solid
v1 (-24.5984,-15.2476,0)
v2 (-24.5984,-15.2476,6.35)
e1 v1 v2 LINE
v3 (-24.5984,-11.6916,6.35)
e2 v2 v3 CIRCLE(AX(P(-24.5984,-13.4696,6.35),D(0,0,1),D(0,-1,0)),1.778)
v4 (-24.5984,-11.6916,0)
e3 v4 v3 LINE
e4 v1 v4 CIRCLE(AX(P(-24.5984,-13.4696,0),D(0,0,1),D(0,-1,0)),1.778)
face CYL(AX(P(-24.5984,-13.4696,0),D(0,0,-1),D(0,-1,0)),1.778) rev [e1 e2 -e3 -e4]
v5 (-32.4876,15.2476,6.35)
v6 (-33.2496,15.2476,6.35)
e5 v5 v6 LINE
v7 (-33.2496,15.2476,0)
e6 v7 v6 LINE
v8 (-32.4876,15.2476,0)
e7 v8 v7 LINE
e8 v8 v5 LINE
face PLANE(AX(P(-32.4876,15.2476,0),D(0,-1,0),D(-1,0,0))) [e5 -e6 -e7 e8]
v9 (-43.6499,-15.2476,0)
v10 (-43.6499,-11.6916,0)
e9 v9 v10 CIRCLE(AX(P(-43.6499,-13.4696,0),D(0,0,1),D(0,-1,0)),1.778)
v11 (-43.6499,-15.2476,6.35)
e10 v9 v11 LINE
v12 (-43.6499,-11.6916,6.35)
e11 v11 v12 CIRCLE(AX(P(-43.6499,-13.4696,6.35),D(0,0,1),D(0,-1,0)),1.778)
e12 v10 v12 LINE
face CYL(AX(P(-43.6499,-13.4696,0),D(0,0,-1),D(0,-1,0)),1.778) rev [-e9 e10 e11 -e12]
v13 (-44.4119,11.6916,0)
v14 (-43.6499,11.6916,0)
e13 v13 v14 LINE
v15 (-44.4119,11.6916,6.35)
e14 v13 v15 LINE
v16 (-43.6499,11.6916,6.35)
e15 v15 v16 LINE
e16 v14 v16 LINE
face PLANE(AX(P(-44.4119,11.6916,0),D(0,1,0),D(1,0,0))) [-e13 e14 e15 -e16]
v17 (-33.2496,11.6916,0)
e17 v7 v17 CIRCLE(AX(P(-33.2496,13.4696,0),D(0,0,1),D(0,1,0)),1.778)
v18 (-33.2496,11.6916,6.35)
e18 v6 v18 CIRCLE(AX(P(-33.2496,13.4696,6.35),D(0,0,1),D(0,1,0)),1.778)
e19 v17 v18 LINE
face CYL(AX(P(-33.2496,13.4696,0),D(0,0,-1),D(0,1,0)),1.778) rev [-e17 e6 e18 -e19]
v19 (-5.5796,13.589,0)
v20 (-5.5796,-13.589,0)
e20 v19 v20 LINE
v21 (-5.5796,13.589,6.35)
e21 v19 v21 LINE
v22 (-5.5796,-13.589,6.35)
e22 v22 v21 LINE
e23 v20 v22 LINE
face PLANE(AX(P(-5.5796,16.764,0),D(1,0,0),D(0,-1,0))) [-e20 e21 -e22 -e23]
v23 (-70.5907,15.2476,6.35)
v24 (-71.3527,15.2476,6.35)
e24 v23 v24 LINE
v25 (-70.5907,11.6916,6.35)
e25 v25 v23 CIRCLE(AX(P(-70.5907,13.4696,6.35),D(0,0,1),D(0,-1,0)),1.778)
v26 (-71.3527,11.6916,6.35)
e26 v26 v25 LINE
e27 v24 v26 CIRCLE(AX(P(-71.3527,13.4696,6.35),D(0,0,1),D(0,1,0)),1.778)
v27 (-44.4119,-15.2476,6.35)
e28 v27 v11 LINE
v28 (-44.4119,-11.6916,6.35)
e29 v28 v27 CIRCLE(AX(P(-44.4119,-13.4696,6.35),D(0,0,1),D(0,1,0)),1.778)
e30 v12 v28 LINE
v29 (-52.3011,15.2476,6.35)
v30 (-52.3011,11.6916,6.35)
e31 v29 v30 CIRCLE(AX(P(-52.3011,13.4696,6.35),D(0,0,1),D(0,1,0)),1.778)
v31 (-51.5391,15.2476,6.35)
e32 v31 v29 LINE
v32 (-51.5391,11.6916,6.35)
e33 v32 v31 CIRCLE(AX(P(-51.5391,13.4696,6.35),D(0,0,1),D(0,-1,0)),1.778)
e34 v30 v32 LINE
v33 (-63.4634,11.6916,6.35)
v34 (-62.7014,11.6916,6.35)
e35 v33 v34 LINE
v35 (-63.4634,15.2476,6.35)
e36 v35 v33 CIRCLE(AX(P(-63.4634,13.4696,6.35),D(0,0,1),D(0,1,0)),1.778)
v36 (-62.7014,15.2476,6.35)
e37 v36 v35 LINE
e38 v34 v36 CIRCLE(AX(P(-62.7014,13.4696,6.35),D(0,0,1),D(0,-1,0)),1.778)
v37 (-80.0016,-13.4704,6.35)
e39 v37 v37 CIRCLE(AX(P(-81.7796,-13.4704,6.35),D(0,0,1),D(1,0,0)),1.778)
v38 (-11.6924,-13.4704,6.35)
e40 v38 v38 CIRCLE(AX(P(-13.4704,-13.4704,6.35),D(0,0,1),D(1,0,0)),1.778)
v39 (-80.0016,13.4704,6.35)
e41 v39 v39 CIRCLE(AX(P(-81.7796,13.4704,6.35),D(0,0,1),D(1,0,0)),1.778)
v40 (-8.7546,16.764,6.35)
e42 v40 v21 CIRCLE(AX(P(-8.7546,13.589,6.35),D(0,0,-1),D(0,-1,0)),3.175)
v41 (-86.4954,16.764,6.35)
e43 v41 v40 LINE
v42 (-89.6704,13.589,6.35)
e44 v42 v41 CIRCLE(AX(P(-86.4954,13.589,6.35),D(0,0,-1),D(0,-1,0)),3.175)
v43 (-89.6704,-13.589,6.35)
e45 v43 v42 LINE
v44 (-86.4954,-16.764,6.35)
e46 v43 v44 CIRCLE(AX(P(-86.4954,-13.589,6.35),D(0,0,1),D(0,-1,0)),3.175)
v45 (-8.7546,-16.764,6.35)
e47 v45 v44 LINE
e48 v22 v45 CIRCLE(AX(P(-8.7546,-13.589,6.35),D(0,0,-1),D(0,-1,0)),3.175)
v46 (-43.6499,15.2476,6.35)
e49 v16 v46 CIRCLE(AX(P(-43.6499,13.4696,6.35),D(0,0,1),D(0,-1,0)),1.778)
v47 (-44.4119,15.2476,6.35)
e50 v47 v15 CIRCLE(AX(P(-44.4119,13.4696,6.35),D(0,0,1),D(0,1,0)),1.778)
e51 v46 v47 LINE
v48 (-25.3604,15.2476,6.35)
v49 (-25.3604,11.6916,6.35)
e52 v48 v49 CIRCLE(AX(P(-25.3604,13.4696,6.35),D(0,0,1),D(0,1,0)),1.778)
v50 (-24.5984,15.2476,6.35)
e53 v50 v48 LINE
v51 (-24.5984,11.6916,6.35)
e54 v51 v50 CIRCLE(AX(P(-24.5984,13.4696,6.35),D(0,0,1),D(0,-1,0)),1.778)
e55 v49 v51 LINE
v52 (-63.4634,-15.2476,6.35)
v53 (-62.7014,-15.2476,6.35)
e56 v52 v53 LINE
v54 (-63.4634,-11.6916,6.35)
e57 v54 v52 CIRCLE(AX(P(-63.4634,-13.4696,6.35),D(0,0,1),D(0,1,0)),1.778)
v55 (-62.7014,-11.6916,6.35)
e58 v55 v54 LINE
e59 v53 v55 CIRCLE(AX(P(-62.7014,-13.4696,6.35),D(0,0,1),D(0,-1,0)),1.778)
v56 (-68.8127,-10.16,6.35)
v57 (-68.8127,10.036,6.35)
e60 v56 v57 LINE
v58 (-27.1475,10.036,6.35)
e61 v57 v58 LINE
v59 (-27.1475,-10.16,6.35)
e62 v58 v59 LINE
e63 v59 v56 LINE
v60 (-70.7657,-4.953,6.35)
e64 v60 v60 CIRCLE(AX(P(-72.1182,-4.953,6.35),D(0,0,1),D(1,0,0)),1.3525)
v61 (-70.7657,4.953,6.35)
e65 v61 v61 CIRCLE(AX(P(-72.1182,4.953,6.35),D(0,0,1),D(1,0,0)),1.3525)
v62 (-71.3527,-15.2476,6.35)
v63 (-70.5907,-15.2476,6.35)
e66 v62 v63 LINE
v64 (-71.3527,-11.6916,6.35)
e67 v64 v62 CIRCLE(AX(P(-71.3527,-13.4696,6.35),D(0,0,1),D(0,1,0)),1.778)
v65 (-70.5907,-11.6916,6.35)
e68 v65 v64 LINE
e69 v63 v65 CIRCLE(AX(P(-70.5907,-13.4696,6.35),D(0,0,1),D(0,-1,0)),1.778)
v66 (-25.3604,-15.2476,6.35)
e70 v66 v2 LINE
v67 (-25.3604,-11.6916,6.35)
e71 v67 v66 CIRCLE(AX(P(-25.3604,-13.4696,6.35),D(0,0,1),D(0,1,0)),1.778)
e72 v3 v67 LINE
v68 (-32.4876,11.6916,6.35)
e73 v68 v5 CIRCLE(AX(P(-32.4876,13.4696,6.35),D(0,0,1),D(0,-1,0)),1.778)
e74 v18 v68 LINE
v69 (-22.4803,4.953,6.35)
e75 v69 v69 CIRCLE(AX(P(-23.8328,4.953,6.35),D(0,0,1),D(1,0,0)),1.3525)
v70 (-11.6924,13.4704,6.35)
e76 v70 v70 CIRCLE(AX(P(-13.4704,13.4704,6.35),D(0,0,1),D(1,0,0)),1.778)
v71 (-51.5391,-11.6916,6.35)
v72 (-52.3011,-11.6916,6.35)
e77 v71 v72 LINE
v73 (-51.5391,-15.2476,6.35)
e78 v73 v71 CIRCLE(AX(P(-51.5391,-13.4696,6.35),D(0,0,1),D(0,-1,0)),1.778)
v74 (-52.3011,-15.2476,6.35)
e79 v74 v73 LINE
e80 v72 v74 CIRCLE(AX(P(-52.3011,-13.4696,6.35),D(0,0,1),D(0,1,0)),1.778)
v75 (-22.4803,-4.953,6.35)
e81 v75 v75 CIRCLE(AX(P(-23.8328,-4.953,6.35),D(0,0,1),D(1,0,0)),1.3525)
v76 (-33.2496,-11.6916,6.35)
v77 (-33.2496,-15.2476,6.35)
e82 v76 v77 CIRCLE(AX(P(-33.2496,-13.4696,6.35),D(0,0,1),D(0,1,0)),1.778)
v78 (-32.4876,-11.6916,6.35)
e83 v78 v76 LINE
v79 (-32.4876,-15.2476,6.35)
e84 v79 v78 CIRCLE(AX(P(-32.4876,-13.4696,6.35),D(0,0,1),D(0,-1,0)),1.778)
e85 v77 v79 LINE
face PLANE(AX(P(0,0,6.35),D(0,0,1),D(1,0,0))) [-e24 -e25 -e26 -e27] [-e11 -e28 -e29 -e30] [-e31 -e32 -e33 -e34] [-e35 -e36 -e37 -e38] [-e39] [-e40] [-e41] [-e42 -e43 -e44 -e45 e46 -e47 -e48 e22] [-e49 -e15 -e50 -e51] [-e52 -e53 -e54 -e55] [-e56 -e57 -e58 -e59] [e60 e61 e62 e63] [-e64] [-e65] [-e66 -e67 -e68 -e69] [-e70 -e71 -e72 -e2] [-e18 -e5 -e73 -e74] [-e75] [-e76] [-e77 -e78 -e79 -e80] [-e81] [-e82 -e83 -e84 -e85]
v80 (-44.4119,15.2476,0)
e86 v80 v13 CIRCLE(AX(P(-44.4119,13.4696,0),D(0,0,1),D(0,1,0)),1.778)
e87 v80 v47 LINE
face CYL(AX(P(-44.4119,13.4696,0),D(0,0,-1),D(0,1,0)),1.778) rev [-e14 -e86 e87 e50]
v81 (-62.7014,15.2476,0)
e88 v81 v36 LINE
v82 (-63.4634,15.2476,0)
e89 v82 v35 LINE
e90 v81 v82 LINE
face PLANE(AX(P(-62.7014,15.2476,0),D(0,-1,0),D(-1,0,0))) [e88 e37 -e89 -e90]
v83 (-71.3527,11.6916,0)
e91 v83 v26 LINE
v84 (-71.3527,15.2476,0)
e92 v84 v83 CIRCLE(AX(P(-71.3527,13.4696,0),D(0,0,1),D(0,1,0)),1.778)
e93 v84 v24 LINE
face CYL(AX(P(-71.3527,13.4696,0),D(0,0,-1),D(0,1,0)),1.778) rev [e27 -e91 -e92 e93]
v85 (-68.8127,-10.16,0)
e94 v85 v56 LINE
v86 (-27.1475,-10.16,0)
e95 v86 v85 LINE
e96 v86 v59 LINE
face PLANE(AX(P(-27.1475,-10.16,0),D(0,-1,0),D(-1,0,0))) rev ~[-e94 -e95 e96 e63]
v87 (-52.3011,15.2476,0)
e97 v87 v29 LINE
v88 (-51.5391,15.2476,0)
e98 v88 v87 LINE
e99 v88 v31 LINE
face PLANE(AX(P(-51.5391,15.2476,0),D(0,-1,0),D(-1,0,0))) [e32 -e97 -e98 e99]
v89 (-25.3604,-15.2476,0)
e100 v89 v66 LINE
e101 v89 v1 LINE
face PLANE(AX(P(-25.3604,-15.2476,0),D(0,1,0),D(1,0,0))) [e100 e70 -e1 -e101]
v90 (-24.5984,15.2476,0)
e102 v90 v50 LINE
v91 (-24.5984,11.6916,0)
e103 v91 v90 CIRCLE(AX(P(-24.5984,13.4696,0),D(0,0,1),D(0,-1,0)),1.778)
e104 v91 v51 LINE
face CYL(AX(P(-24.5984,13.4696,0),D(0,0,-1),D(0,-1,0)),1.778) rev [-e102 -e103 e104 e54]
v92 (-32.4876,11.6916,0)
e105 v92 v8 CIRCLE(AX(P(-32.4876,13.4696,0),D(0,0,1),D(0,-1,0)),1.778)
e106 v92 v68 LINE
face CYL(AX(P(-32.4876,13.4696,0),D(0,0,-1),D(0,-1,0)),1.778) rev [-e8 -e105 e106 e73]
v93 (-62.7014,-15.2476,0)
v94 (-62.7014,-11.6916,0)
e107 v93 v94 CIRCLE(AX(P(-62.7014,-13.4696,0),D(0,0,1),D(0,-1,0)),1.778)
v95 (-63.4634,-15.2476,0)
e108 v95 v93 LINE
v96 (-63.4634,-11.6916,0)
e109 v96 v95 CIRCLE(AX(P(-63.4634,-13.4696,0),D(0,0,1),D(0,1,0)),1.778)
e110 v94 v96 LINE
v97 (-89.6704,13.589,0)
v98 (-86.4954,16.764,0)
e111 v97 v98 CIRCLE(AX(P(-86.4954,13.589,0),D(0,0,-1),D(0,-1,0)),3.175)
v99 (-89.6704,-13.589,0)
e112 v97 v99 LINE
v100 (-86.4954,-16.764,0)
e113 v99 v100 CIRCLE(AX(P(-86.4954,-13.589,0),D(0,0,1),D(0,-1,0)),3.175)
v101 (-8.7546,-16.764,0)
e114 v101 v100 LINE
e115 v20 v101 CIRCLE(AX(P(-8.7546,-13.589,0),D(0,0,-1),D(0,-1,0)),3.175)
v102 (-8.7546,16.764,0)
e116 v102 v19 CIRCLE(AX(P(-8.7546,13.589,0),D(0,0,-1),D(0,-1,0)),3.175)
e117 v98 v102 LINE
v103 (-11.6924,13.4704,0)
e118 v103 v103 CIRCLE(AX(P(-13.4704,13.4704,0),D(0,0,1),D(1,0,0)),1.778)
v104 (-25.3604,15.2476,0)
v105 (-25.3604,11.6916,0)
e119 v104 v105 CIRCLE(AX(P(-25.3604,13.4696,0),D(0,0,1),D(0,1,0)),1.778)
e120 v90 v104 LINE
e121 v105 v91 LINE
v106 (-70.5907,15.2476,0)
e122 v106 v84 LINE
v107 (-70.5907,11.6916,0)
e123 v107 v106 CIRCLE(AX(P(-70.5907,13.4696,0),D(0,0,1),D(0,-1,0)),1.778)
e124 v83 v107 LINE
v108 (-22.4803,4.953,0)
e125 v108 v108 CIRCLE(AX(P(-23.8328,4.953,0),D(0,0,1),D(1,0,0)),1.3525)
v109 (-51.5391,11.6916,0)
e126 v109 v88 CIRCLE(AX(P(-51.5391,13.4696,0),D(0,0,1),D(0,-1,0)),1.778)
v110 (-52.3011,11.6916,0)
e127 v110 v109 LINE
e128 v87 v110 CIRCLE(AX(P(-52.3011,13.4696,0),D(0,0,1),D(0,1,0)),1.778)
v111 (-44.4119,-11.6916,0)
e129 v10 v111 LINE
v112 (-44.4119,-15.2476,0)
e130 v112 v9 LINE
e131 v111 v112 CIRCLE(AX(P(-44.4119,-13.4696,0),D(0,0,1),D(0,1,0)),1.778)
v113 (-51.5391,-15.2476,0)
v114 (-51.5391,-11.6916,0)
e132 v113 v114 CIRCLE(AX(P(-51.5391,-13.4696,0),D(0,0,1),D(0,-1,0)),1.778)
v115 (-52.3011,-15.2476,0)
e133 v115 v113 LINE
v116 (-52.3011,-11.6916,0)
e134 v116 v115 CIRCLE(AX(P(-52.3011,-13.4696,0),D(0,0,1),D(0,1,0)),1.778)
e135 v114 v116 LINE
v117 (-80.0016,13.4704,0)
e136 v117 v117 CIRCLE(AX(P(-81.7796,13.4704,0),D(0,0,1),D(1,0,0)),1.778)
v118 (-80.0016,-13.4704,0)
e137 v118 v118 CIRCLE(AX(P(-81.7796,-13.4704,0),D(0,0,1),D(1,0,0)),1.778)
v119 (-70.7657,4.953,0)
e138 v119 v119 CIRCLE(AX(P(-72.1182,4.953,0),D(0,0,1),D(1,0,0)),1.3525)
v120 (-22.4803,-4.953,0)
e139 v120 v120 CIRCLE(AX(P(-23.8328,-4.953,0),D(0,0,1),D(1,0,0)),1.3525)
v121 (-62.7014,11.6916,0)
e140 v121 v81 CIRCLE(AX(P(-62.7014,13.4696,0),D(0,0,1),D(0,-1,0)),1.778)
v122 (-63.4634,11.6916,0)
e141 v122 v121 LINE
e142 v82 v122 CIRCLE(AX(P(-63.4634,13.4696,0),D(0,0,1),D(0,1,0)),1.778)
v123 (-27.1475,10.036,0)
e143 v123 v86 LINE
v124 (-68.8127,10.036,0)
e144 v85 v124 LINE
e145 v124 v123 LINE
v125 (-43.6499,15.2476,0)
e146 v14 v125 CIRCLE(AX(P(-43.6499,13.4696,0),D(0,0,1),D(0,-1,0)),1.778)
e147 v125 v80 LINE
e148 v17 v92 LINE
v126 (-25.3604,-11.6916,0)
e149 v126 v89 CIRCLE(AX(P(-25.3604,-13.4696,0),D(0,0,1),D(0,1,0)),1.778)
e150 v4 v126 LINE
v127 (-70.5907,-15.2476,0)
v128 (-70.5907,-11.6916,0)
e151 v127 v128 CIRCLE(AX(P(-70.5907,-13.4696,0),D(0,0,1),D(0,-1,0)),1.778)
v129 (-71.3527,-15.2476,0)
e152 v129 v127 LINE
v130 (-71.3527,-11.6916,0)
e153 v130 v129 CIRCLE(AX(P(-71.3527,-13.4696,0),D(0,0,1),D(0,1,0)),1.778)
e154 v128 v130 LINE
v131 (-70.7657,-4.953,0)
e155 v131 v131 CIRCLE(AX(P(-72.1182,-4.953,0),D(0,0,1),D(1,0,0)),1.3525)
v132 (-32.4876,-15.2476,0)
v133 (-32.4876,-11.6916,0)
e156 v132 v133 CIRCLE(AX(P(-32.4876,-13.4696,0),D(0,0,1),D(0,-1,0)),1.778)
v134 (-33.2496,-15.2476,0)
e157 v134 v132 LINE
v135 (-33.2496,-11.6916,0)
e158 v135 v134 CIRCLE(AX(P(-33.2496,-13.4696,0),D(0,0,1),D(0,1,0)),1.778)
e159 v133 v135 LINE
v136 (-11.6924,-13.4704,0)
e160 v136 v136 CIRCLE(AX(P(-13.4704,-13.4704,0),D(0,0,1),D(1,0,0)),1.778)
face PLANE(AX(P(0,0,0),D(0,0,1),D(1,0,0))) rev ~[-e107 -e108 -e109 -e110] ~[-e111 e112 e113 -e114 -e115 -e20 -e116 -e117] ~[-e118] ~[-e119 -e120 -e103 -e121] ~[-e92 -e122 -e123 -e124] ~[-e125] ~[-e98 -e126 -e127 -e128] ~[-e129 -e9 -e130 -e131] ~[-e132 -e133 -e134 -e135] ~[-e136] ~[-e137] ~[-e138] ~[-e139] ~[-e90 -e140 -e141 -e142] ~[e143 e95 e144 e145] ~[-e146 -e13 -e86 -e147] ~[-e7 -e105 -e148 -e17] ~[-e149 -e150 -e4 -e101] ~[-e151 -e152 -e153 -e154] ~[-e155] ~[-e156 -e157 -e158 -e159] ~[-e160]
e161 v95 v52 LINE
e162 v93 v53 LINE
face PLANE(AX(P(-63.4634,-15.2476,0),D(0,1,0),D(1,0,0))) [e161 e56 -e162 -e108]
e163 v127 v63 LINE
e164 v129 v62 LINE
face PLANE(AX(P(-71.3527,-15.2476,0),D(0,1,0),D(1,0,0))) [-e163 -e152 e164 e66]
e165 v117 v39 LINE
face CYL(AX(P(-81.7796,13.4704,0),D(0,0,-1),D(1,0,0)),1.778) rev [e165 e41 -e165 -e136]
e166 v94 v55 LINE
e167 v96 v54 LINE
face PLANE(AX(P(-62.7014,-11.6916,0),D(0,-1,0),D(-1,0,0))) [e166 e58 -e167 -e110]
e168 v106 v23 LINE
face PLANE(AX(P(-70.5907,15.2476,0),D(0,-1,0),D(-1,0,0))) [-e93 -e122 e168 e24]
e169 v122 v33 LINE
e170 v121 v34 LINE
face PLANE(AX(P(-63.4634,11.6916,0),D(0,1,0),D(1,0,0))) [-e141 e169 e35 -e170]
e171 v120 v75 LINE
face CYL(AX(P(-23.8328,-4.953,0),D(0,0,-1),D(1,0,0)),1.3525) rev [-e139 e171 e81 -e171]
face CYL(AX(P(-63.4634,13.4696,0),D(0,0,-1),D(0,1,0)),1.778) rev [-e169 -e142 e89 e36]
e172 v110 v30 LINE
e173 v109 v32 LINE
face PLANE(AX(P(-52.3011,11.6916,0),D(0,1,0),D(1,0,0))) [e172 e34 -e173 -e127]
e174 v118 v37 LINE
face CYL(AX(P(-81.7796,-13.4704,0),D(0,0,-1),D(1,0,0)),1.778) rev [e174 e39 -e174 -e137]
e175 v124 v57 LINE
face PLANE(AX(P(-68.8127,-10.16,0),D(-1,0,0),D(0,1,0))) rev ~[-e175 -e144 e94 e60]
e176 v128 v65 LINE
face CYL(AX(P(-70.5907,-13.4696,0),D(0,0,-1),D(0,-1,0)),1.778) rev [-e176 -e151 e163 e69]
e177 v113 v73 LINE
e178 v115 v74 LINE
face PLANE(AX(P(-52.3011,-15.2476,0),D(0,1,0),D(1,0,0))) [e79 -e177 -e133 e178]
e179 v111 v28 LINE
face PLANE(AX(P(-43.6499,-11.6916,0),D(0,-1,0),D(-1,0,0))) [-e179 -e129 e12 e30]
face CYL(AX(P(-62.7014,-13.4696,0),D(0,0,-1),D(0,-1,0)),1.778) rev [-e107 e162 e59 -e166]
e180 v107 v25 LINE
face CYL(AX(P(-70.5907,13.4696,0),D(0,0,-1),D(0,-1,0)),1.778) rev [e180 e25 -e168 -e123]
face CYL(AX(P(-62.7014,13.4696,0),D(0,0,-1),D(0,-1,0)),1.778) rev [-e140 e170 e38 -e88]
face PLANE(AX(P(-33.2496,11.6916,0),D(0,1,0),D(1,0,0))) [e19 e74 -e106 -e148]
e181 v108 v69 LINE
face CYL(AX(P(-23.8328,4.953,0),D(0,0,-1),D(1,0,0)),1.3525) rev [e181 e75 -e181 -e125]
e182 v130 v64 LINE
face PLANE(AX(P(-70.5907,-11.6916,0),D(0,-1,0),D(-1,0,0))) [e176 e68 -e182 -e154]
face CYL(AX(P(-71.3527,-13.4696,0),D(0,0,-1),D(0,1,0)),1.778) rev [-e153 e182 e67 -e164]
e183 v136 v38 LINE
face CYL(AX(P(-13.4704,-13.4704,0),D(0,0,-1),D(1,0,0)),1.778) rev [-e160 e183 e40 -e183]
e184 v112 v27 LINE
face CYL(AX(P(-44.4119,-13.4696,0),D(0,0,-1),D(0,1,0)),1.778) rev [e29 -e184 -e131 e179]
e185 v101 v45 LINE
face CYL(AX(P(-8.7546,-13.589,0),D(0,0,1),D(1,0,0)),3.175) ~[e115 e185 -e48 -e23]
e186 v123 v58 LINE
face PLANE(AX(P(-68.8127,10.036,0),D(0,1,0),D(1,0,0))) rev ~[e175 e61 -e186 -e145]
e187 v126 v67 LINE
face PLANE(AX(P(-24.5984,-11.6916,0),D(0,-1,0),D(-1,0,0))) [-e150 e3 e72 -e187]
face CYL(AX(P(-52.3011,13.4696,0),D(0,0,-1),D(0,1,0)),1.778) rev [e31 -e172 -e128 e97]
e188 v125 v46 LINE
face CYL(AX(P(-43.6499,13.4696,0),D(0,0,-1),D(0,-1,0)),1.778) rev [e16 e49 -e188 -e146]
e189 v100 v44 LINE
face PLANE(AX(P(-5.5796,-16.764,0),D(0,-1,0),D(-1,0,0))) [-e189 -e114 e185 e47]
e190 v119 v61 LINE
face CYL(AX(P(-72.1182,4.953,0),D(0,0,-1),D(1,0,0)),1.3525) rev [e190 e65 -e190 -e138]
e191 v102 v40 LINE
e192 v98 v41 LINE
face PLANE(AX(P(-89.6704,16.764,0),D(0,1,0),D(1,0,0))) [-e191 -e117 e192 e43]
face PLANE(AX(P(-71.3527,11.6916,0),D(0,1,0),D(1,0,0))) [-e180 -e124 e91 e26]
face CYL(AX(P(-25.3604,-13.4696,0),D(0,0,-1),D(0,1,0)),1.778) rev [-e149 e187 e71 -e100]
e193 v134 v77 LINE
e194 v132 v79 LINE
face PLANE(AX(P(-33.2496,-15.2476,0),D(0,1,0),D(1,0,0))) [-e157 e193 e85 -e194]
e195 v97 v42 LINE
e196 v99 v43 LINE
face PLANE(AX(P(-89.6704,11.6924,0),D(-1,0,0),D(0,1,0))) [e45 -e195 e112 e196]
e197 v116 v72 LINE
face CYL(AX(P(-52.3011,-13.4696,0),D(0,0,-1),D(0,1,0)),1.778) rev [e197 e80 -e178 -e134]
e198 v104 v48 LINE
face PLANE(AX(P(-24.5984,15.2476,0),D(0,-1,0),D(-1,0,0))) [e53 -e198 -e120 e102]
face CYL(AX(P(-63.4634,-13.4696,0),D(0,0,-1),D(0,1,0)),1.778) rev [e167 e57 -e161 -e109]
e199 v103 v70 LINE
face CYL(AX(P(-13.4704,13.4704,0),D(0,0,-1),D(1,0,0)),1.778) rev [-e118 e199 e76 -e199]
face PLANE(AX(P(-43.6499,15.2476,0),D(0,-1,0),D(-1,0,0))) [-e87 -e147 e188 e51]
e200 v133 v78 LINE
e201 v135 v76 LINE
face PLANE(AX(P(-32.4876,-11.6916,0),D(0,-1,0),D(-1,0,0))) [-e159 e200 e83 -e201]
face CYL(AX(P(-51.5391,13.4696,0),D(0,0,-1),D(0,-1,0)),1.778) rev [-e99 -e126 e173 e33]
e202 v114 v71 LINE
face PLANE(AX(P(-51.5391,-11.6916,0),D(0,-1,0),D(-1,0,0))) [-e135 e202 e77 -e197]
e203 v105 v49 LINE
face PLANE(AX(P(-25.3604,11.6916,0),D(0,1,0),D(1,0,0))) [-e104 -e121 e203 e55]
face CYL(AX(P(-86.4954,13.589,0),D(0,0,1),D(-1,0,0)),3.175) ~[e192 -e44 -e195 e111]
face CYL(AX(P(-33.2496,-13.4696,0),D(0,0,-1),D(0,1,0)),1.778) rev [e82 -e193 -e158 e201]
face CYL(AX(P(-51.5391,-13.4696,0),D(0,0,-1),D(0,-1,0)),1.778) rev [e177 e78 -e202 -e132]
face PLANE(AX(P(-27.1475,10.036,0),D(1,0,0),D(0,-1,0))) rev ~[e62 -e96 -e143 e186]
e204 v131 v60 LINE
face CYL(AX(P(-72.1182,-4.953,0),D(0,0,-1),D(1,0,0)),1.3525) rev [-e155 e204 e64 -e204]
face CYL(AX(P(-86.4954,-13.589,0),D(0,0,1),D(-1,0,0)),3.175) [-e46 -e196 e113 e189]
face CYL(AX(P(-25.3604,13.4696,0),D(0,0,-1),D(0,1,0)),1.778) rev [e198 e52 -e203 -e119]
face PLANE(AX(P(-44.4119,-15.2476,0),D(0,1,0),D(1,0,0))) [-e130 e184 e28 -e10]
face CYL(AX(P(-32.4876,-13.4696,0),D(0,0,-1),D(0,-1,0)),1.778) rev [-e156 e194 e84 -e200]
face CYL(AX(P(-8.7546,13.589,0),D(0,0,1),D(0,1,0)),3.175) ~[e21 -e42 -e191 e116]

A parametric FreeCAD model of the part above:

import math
import FreeCAD as App
import Part
import Sketcher

V = App.Vector
Q = App.Units.Quantity


def edges_at(feature, points):
    """Names of the edges that pass closest to the given points."""
    edges = feature.Shape.Edges
    near = lambda p: min(range(len(edges)), key=lambda i: edges[i].distToShape(Part.Vertex(*p))[0])
    return sorted({f"Edge{near(p) + 1}" for p in points})

doc = App.newDocument("Part")
body = doc.addObject("PartDesign::Body", "Body")

sketch1 = doc.addObject("Sketcher::SketchObject", "Sketch")
body.addObject(sketch1)
sketch1.AttachmentSupport = (doc.XY_Plane, [""])
sketch1.MapMode = "FlatFace"
sketch1.addGeometry(Part.LineSegment(V(-89.7, -16.8, 0), V(-5.6, -16.8, 0)), False)
sketch1.addGeometry(Part.LineSegment(V(-5.6, -16.8, 0), V(-5.6, 16.8, 0)), False)
sketch1.addGeometry(Part.LineSegment(V(-5.6, 16.8, 0), V(-89.7, 16.8, 0)), False)
sketch1.addGeometry(Part.LineSegment(V(-89.7, 16.8, 0), V(-89.7, -16.8, 0)), False)
sketch1.addGeometry(Part.LineSegment(V(-24.6, 11.7, 0), V(-25.4, 11.7, 0)), False)
sketch1.addGeometry(Part.ArcOfCircle(Part.Circle(V(-25.4, 13.5, 0), V(0, 0, 1), 1.8), math.radians(90), math.radians(270)), False)
sketch1.addGeometry(Part.LineSegment(V(-25.4, 15.2, 0), V(-24.6, 15.2, 0)), False)
sketch1.addGeometry(Part.ArcOfCircle(Part.Circle(V(-24.6, 13.5, 0), V(0, 0, 1), 1.8), math.radians(-90), math.radians(90)), False)
sketch1.addGeometry(Part.Circle(V(-13.5, 13.5, 0), V(0, 0, 1), 1.8), False)
sketch1.addGeometry(Part.Circle(V(-81.8, -13.5, 0), V(0, 0, 1), 1.8), False)
sketch1.addGeometry(Part.LineSegment(V(-70.6, -15.2, 0), V(-71.4, -15.2, 0)), False)
sketch1.addGeometry(Part.ArcOfCircle(Part.Circle(V(-71.4, -13.5, 0), V(0, 0, 1), 1.8), math.radians(90), math.radians(270)), False)
sketch1.addGeometry(Part.LineSegment(V(-71.4, -11.7, 0), V(-70.6, -11.7, 0)), False)
sketch1.addGeometry(Part.ArcOfCircle(Part.Circle(V(-70.6, -13.5, 0), V(0, 0, 1), 1.8), math.radians(-90), math.radians(90)), False)
sketch1.addGeometry(Part.LineSegment(V(-62.7, -15.2, 0), V(-63.5, -15.2, 0)), False)
sketch1.addGeometry(Part.ArcOfCircle(Part.Circle(V(-63.5, -13.5, 0), V(0, 0, 1), 1.8), math.radians(90), math.radians(270)), False)
sketch1.addGeometry(Part.LineSegment(V(-63.5, -11.7, 0), V(-62.7, -11.7, 0)), False)
sketch1.addGeometry(Part.ArcOfCircle(Part.Circle(V(-62.7, -13.5, 0), V(0, 0, 1), 1.8), math.radians(-90), math.radians(90)), False)
sketch1.addGeometry(Part.LineSegment(V(-51.5, -15.2, 0), V(-52.3, -15.2, 0)), False)
sketch1.addGeometry(Part.ArcOfCircle(Part.Circle(V(-52.3, -13.5, 0), V(0, 0, 1), 1.8), math.radians(90), math.radians(270)), False)
sketch1.addGeometry(Part.LineSegment(V(-52.3, -11.7, 0), V(-51.5, -11.7, 0)), False)
sketch1.addGeometry(Part.ArcOfCircle(Part.Circle(V(-51.5, -13.5, 0), V(0, 0, 1), 1.8), math.radians(-90), math.radians(90)), False)
sketch1.addGeometry(Part.Circle(V(-72.1, -5, 0), V(0, 0, 1), 1.4), False)
sketch1.addGeometry(Part.LineSegment(V(-68.8, -10.2, 0), V(-68.8, 10, 0)), False)
sketch1.addGeometry(Part.LineSegment(V(-68.8, 10, 0), V(-27.1, 10, 0)), False)
sketch1.addGeometry(Part.LineSegment(V(-27.1, 10, 0), V(-27.1, -10.2, 0)), False)
sketch1.addGeometry(Part.LineSegment(V(-27.1, -10.2, 0), V(-68.8, -10.2, 0)), False)
sketch1.addGeometry(Part.LineSegment(V(-43.6, -15.2, 0), V(-44.4, -15.2, 0)), False)
sketch1.addGeometry(Part.ArcOfCircle(Part.Circle(V(-44.4, -13.5, 0), V(0, 0, 1), 1.8), math.radians(90), math.radians(270)), False)
sketch1.addGeometry(Part.LineSegment(V(-44.4, -11.7, 0), V(-43.6, -11.7, 0)), False)
sketch1.addGeometry(Part.ArcOfCircle(Part.Circle(V(-43.6, -13.5, 0), V(0, 0, 1), 1.8), math.radians(-90), math.radians(90)), False)
sketch1.addGeometry(Part.LineSegment(V(-32.5, -15.2, 0), V(-33.2, -15.2, 0)), False)
sketch1.addGeometry(Part.ArcOfCircle(Part.Circle(V(-33.2, -13.5, 0), V(0, 0, 1), 1.8), math.radians(90), math.radians(270)), False)
sketch1.addGeometry(Part.LineSegment(V(-33.2, -11.7, 0), V(-32.5, -11.7, 0)), False)
sketch1.addGeometry(Part.ArcOfCircle(Part.Circle(V(-32.5, -13.5, 0), V(0, 0, 1), 1.8), math.radians(-90), math.radians(90)), False)
sketch1.addGeometry(Part.LineSegment(V(-24.6, -15.2, 0), V(-25.4, -15.2, 0)), False)
sketch1.addGeometry(Part.ArcOfCircle(Part.Circle(V(-25.4, -13.5, 0), V(0, 0, 1), 1.8), math.radians(90), math.radians(270)), False)
sketch1.addGeometry(Part.LineSegment(V(-25.4, -11.7, 0), V(-24.6, -11.7, 0)), False)
sketch1.addGeometry(Part.ArcOfCircle(Part.Circle(V(-24.6, -13.5, 0), V(0, 0, 1), 1.8), math.radians(-90), math.radians(90)), False)
sketch1.addGeometry(Part.Circle(V(-13.5, -13.5, 0), V(0, 0, 1), 1.8), False)
sketch1.addGeometry(Part.Circle(V(-23.8, -5, 0), V(0, 0, 1), 1.4), False)
sketch1.addGeometry(Part.Circle(V(-72.1, 5, 0), V(0, 0, 1), 1.4), False)
sketch1.addGeometry(Part.Circle(V(-81.8, 13.5, 0), V(0, 0, 1), 1.8), False)
sketch1.addGeometry(Part.LineSegment(V(-70.6, 11.7, 0), V(-71.4, 11.7, 0)), False)
sketch1.addGeometry(Part.ArcOfCircle(Part.Circle(V(-71.4, 13.5, 0), V(0, 0, 1), 1.8), math.radians(90), math.radians(270)), False)
sketch1.addGeometry(Part.LineSegment(V(-71.4, 15.2, 0), V(-70.6, 15.2, 0)), False)
sketch1.addGeometry(Part.ArcOfCircle(Part.Circle(V(-70.6, 13.5, 0), V(0, 0, 1), 1.8), math.radians(-90), math.radians(90)), False)
sketch1.addGeometry(Part.LineSegment(V(-62.7, 11.7, 0), V(-63.5, 11.7, 0)), False)
sketch1.addGeometry(Part.ArcOfCircle(Part.Circle(V(-63.5, 13.5, 0), V(0, 0, 1), 1.8), math.radians(90), math.radians(270)), False)
sketch1.addGeometry(Part.LineSegment(V(-63.5, 15.2, 0), V(-62.7, 15.2, 0)), False)
sketch1.addGeometry(Part.ArcOfCircle(Part.Circle(V(-62.7, 13.5, 0), V(0, 0, 1), 1.8), math.radians(-90), math.radians(90)), False)
sketch1.addGeometry(Part.ArcOfCircle(Part.Circle(V(-51.5, 13.5, 0), V(0, 0, 1), 1.8), math.radians(-90), math.radians(90)), False)
sketch1.addGeometry(Part.LineSegment(V(-51.5, 11.7, 0), V(-52.3, 11.7, 0)), False)
sketch1.addGeometry(Part.ArcOfCircle(Part.Circle(V(-52.3, 13.5, 0), V(0, 0, 1), 1.8), math.radians(90), math.radians(270)), False)
sketch1.addGeometry(Part.LineSegment(V(-52.3, 15.2, 0), V(-51.5, 15.2, 0)), False)
sketch1.addGeometry(Part.Circle(V(-23.8, 5, 0), V(0, 0, 1), 1.4), False)
sketch1.addGeometry(Part.ArcOfCircle(Part.Circle(V(-43.6, 13.5, 0), V(0, 0, 1), 1.8), math.radians(-90), math.radians(90)), False)
sketch1.addGeometry(Part.LineSegment(V(-43.6, 11.7, 0), V(-44.4, 11.7, 0)), False)
sketch1.addGeometry(Part.ArcOfCircle(Part.Circle(V(-44.4, 13.5, 0), V(0, 0, 1), 1.8), math.radians(90), math.radians(270)), False)
sketch1.addGeometry(Part.LineSegment(V(-44.4, 15.2, 0), V(-43.6, 15.2, 0)), False)
sketch1.addGeometry(Part.ArcOfCircle(Part.Circle(V(-33.2, 13.5, 0), V(0, 0, 1), 1.8), math.radians(90), math.radians(270)), False)
sketch1.addGeometry(Part.LineSegment(V(-33.2, 15.2, 0), V(-32.5, 15.2, 0)), False)
sketch1.addGeometry(Part.ArcOfCircle(Part.Circle(V(-32.5, 13.5, 0), V(0, 0, 1), 1.8), math.radians(-90), math.radians(90)), False)
sketch1.addGeometry(Part.LineSegment(V(-32.5, 11.7, 0), V(-33.2, 11.7, 0)), False)
sketch1.addConstraint(Sketcher.Constraint("Coincident", 0, 2, 1, 1))
sketch1.addConstraint(Sketcher.Constraint("Coincident", 1, 2, 2, 1))
sketch1.addConstraint(Sketcher.Constraint("Coincident", 2, 2, 3, 1))
sketch1.addConstraint(Sketcher.Constraint("Coincident", 3, 2, 0, 1))
sketch1.addConstraint(Sketcher.Constraint("Tangent", 4, 2, 5, 2))
sketch1.addConstraint(Sketcher.Constraint("Tangent", 5, 1, 6, 1))
sketch1.addConstraint(Sketcher.Constraint("Tangent", 6, 2, 7, 2))
sketch1.addConstraint(Sketcher.Constraint("Tangent", 7, 1, 4, 1))
sketch1.addConstraint(Sketcher.Constraint("Tangent", 10, 2, 11, 2))
sketch1.addConstraint(Sketcher.Constraint("Tangent", 11, 1, 12, 1))
sketch1.addConstraint(Sketcher.Constraint("Tangent", 12, 2, 13, 2))
sketch1.addConstraint(Sketcher.Constraint("Tangent", 13, 1, 10, 1))
sketch1.addConstraint(Sketcher.Constraint("Tangent", 14, 2, 15, 2))
sketch1.addConstraint(Sketcher.Constraint("Tangent", 15, 1, 16, 1))
sketch1.addConstraint(Sketcher.Constraint("Tangent", 16, 2, 17, 2))
sketch1.addConstraint(Sketcher.Constraint("Tangent", 17, 1, 14, 1))
sketch1.addConstraint(Sketcher.Constraint("Tangent", 18, 2, 19, 2))
sketch1.addConstraint(Sketcher.Constraint("Tangent", 19, 1, 20, 1))
sketch1.addConstraint(Sketcher.Constraint("Tangent", 20, 2, 21, 2))
sketch1.addConstraint(Sketcher.Constraint("Tangent", 21, 1, 18, 1))
sketch1.addConstraint(Sketcher.Constraint("Coincident", 23, 2, 24, 1))
sketch1.addConstraint(Sketcher.Constraint("Coincident", 24, 2, 25, 1))
sketch1.addConstraint(Sketcher.Constraint("Coincident", 25, 2, 26, 1))
sketch1.addConstraint(Sketcher.Constraint("Coincident", 26, 2, 23, 1))
sketch1.addConstraint(Sketcher.Constraint("Tangent", 27, 2, 28, 2))
sketch1.addConstraint(Sketcher.Constraint("Tangent", 28, 1, 29, 1))
sketch1.addConstraint(Sketcher.Constraint("Tangent", 29, 2, 30, 2))
sketch1.addConstraint(Sketcher.Constraint("Tangent", 30, 1, 27, 1))
sketch1.addConstraint(Sketcher.Constraint("Tangent", 31, 2, 32, 2))
sketch1.addConstraint(Sketcher.Constraint("Tangent", 32, 1, 33, 1))
sketch1.addConstraint(Sketcher.Constraint("Tangent", 33, 2, 34, 2))
sketch1.addConstraint(Sketcher.Constraint("Tangent", 34, 1, 31, 1))
sketch1.addConstraint(Sketcher.Constraint("Tangent", 35, 2, 36, 2))
sketch1.addConstraint(Sketcher.Constraint("Tangent", 36, 1, 37, 1))
sketch1.addConstraint(Sketcher.Constraint("Tangent", 37, 2, 38, 2))
sketch1.addConstraint(Sketcher.Constraint("Tangent", 38, 1, 35, 1))
sketch1.addConstraint(Sketcher.Constraint("Tangent", 43, 2, 44, 2))
sketch1.addConstraint(Sketcher.Constraint("Tangent", 44, 1, 45, 1))
sketch1.addConstraint(Sketcher.Constraint("Tangent", 45, 2, 46, 2))
sketch1.addConstraint(Sketcher.Constraint("Tangent", 46, 1, 43, 1))
sketch1.addConstraint(Sketcher.Constraint("Tangent", 47, 2, 48, 2))
sketch1.addConstraint(Sketcher.Constraint("Tangent", 48, 1, 49, 1))
sketch1.addConstraint(Sketcher.Constraint("Tangent", 49, 2, 50, 2))
sketch1.addConstraint(Sketcher.Constraint("Tangent", 50, 1, 47, 1))
sketch1.addConstraint(Sketcher.Constraint("Tangent", 51, 1, 52, 1))
sketch1.addConstraint(Sketcher.Constraint("Tangent", 52, 2, 53, 2))
sketch1.addConstraint(Sketcher.Constraint("Tangent", 53, 1, 54, 1))
sketch1.addConstraint(Sketcher.Constraint("Tangent", 54, 2, 51, 2))
sketch1.addConstraint(Sketcher.Constraint("Tangent", 56, 1, 57, 1))
sketch1.addConstraint(Sketcher.Constraint("Tangent", 57, 2, 58, 2))
sketch1.addConstraint(Sketcher.Constraint("Tangent", 58, 1, 59, 1))
sketch1.addConstraint(Sketcher.Constraint("Tangent", 59, 2, 56, 2))
sketch1.addConstraint(Sketcher.Constraint("Tangent", 60, 1, 61, 1))
sketch1.addConstraint(Sketcher.Constraint("Tangent", 61, 2, 62, 2))
sketch1.addConstraint(Sketcher.Constraint("Tangent", 62, 1, 63, 1))
sketch1.addConstraint(Sketcher.Constraint("Tangent", 63, 2, 60, 2))
sketch1.addConstraint(Sketcher.Constraint("Horizontal", 0))
sketch1.addConstraint(Sketcher.Constraint("Vertical", 1))
sketch1.addConstraint(Sketcher.Constraint("Horizontal", 2))
sketch1.addConstraint(Sketcher.Constraint("Vertical", 3))
sketch1.addConstraint(Sketcher.Constraint("Horizontal", 4))
sketch1.addConstraint(Sketcher.Constraint("Horizontal", 6))
sketch1.addConstraint(Sketcher.Constraint("Horizontal", 10))
sketch1.addConstraint(Sketcher.Constraint("Horizontal", 12))
sketch1.addConstraint(Sketcher.Constraint("Horizontal", 14))
sketch1.addConstraint(Sketcher.Constraint("Horizontal", 16))
sketch1.addConstraint(Sketcher.Constraint("Horizontal", 18))
sketch1.addConstraint(Sketcher.Constraint("Horizontal", 20))
sketch1.addConstraint(Sketcher.Constraint("Vertical", 23))
sketch1.addConstraint(Sketcher.Constraint("Horizontal", 24))
sketch1.addConstraint(Sketcher.Constraint("Vertical", 25))
sketch1.addConstraint(Sketcher.Constraint("Horizontal", 26))
sketch1.addConstraint(Sketcher.Constraint("Horizontal", 27))
sketch1.addConstraint(Sketcher.Constraint("Horizontal", 29))
sketch1.addConstraint(Sketcher.Constraint("Horizontal", 31))
sketch1.addConstraint(Sketcher.Constraint("Horizontal", 33))
sketch1.addConstraint(Sketcher.Constraint("Horizontal", 35))
sketch1.addConstraint(Sketcher.Constraint("Horizontal", 37))
sketch1.addConstraint(Sketcher.Constraint("Horizontal", 43))
sketch1.addConstraint(Sketcher.Constraint("Horizontal", 45))
sketch1.addConstraint(Sketcher.Constraint("Horizontal", 47))
sketch1.addConstraint(Sketcher.Constraint("Horizontal", 49))
sketch1.addConstraint(Sketcher.Constraint("Horizontal", 52))
sketch1.addConstraint(Sketcher.Constraint("Horizontal", 54))
sketch1.addConstraint(Sketcher.Constraint("Horizontal", 57))
sketch1.addConstraint(Sketcher.Constraint("Horizontal", 59))
sketch1.addConstraint(Sketcher.Constraint("Horizontal", 61))
sketch1.addConstraint(Sketcher.Constraint("Horizontal", 63))
sketch1.addConstraint(Sketcher.Constraint("Equal", 7, 8))
sketch1.addConstraint(Sketcher.Constraint("Equal", 8, 9))
sketch1.addConstraint(Sketcher.Constraint("Equal", 9, 11))
sketch1.addConstraint(Sketcher.Constraint("Equal", 13, 15))
sketch1.addConstraint(Sketcher.Constraint("Equal", 17, 19))
sketch1.addConstraint(Sketcher.Constraint("Equal", 21, 28))
sketch1.addConstraint(Sketcher.Constraint("Equal", 30, 32))
sketch1.addConstraint(Sketcher.Constraint("Equal", 34, 36))
sketch1.addConstraint(Sketcher.Constraint("Equal", 38, 39))
sketch1.addConstraint(Sketcher.Constraint("Equal", 22, 40))
sketch1.addConstraint(Sketcher.Constraint("Equal", 40, 41))
sketch1.addConstraint(Sketcher.Constraint("Equal", 39, 42))
sketch1.addConstraint(Sketcher.Constraint("Equal", 42, 44))
sketch1.addConstraint(Sketcher.Constraint("Equal", 46, 48))
sketch1.addConstraint(Sketcher.Constraint("Equal", 50, 51))
sketch1.addConstraint(Sketcher.Constraint("Equal", 41, 55))
sketch1.addConstraint(Sketcher.Constraint("Equal", 53, 56))
sketch1.addConstraint(Sketcher.Constraint("Equal", 58, 60))
sketch1.addConstraint(Sketcher.Constraint("Symmetric", 5, 3, 36, 3, -1))
sketch1.addConstraint(Sketcher.Constraint("Symmetric", 8, 3, 39, 3, -1))
sketch1.addConstraint(Sketcher.Constraint("Symmetric", 22, 3, 41, 3, -1))
sketch1.addConstraint(Sketcher.Constraint("Symmetric", 9, 3, 42, 3, -1))
sketch1.addConstraint(Sketcher.Constraint("Symmetric", 11, 3, 44, 3, -1))
sketch1.addConstraint(Sketcher.Constraint("Symmetric", 15, 3, 48, 3, -1))
sketch1.addConstraint(Sketcher.Constraint("Symmetric", 21, 3, 51, 3, -1))
sketch1.addConstraint(Sketcher.Constraint("Symmetric", 40, 3, 55, 3, -1))
sketch1.addConstraint(Sketcher.Constraint("Symmetric", 30, 3, 56, 3, -1))
sketch1.addConstraint(Sketcher.Constraint("Symmetric", 32, 3, 60, 3, -1))
sketch1.addConstraint(Sketcher.Constraint("Horizontal", 13, 3, 15, 3))
sketch1.addConstraint(Sketcher.Constraint("Horizontal", 17, 3, 19, 3))
sketch1.addConstraint(Sketcher.Constraint("Horizontal", 21, 3, 28, 3))
sketch1.addConstraint(Sketcher.Constraint("Horizontal", 30, 3, 32, 3))
sketch1.addConstraint(Sketcher.Constraint("Horizontal", 34, 3, 36, 3))
sketch1.addConstraint(Sketcher.Constraint("Horizontal", 9, 3, 39, 3))
sketch1.addConstraint(Sketcher.Constraint("Horizontal", 22, 3, 40, 3))
sketch1.addConstraint(Sketcher.Constraint("Vertical", 7, 3, 38, 3))
sketch1.addConstraint(Sketcher.Constraint("Vertical", 13, 3, 46, 3))
sketch1.addConstraint(Sketcher.Constraint("Vertical", 17, 3, 50, 3))
sketch1.addConstraint(Sketcher.Constraint("Vertical", 19, 3, 53, 3))
sketch1.addConstraint(Sketcher.Constraint("Vertical", 28, 3, 58, 3))
sketch1.addConstraint(Sketcher.Constraint("Vertical", 34, 3, 62, 3))
sketch1.addConstraint(Sketcher.Constraint("Equal", 6, 10))
sketch1.addConstraint(Sketcher.Constraint("Equal", 12, 14))
sketch1.addConstraint(Sketcher.Constraint("Equal", 16, 18))
sketch1.addConstraint(Sketcher.Constraint("Equal", 20, 27))
sketch1.addConstraint(Sketcher.Constraint("Equal", 29, 31))
sketch1.addConstraint(Sketcher.Constraint("Diameter", 8, Q("0.14 in")))
sketch1.addConstraint(Sketcher.Constraint("Diameter", 22, Q("0.1065 in")))
sketch1.addConstraint(Sketcher.Constraint("DistanceX", 4, 2, 4, 1, Q("0.03 in")))
sketch1.addConstraint(Sketcher.Constraint("DistanceY", 1, 1, 1, 2, Q("1.32 in")))
sketch1.addConstraint(Sketcher.Constraint("DistanceY", 25, 2, -1, 1, Q("0.4 in")))
sketch1.addConstraint(Sketcher.Constraint("DistanceY", 0, 2, -1, 1, Q("0.66 in")))
sketch1.addConstraint(Sketcher.Constraint("DistanceY", 22, 3, -1, 1, Q("0.195 in")))
sketch1.addConstraint(Sketcher.Constraint("DistanceX", 0, 1, 0, 2, 84.0908))
sketch1.addConstraint(Sketcher.Constraint("DistanceX", 24, 1, 24, 2, 41.6652))
sketch1.addConstraint(Sketcher.Constraint("DistanceY", 23, 1, 23, 2, 20.196))
sketch1.addConstraint(Sketcher.Constraint("DistanceY", -1, 1, 5, 3, Q("0.5303 in")))
sketch1.addConstraint(Sketcher.Constraint("DistanceX", 19, 3, -1, 1, Q("2.0591 in")))
sketch1.addConstraint(Sketcher.Constraint("DistanceX", 22, 3, -1, 1, Q("2.8393 in")))
sketch1.addConstraint(Sketcher.Constraint("DistanceX", 28, 3, -1, 1, Q("1.7485 in")))
sketch1.addConstraint(Sketcher.Constraint("DistanceX", 40, 3, -1, 1, Q("0.9383 in")))
sketch1.addConstraint(Sketcher.Constraint("DistanceX", 24, 2, -1, 1, Q("1.0688 in")))
sketch1.addConstraint(Sketcher.Constraint("DistanceX", 5, 3, -1, 1, 25.3604))
sketch1.addConstraint(Sketcher.Constraint("DistanceX", 8, 3, -1, 1, 13.4704))
sketch1.addConstraint(Sketcher.Constraint("DistanceY", -1, 1, 8, 3, 13.4704))
sketch1.addConstraint(Sketcher.Constraint("DistanceX", 9, 3, -1, 1, 81.7796))
sketch1.addConstraint(Sketcher.Constraint("DistanceX", 11, 3, -1, 1, 71.3527))
sketch1.addConstraint(Sketcher.Constraint("DistanceX", 15, 3, -1, 1, 63.4634))
sketch1.addConstraint(Sketcher.Constraint("DistanceX", 32, 3, -1, 1, 33.2496))
sketch1.addConstraint(Sketcher.Constraint("DistanceX", 0, 2, -1, 1, 5.5796))
pad1 = doc.addObject("PartDesign::Pad", "Pad")
body.addObject(pad1)
pad1.Profile = sketch1
pad1.Length = Q("0.25 in")
doc.recompute()

fillet = doc.addObject("PartDesign::Fillet", "Fillet")
body.addObject(fillet)
fillet.Base = (pad1, edges_at(pad1, [
    (-5.58, 16.764, 3.175),
    (-89.67, 16.764, 3.175),
    (-89.67, -16.764, 3.175),
    (-5.58, -16.764, 3.175),
]))
fillet.Radius = Q("0.125 in")

doc.recompute()
